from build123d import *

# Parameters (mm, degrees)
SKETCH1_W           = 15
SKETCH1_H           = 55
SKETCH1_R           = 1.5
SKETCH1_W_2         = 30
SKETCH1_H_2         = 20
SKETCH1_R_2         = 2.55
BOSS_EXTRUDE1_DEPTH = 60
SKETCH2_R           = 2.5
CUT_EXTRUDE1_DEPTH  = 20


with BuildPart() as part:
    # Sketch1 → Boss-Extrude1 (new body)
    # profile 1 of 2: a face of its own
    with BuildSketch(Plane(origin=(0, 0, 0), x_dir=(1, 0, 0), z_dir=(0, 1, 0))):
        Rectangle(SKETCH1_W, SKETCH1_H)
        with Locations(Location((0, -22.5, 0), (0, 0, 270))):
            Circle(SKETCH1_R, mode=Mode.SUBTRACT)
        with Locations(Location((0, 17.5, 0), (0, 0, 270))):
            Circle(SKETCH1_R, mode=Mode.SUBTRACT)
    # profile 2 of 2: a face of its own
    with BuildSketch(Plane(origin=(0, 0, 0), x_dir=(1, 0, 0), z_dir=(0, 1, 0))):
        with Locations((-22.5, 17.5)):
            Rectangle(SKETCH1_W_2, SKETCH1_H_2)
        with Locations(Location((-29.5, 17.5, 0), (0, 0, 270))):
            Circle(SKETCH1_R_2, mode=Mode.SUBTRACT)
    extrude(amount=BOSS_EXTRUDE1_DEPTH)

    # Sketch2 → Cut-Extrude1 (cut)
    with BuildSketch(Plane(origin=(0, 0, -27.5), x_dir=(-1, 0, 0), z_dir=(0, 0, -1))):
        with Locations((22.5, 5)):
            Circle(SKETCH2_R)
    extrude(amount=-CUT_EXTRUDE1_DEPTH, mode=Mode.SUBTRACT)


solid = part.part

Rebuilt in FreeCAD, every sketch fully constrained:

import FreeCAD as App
import Part
import Sketcher

V = App.Vector
Q = App.Units.Quantity


def add_polygon(sketch, points):
    """Adds a closed chain of lines whose ends are joined by coincident constraints."""
    first, n = sketch.GeometryCount, len(points)
    for a, b in zip(points, points[1:] + points[:1]):
        sketch.addGeometry(Part.LineSegment(App.Vector(*a, 0), App.Vector(*b, 0)), False)
    for i in range(n):
        sketch.addConstraint(Sketcher.Constraint("Coincident", first + i, 2, first + (i + 1) % n, 1))

doc = App.newDocument("Part")
body = doc.addObject("PartDesign::Body", "Body")

# Sketch on XZ plane
sketch1 = body.newObject("Sketcher::SketchObject", "Sketch")
sketch1.AttachmentSupport = (doc.getObject("XZ_Plane"), [""])
sketch1.MapMode = "FlatFace"
add_polygon(sketch1, [(-7.5, -7.5), (-7.5, 27.5), (7.5, 27.5), (7.5, -27.5), (-37.5, -27.5), (-37.5, -7.5)])  # lines 0-5
sketch1.addGeometry(Part.Circle(V(0, 22.5, 0), V(0, 0, 1), 1.5), False)  # 6
sketch1.addGeometry(Part.Circle(V(0, -17.5, 0), V(0, 0, 1), 1.5), False)  # 7
sketch1.addGeometry(Part.Circle(V(-29.5, -17.5, 0), V(0, 0, 1), 2.5), False)  # 8
sketch1.addConstraint(Sketcher.Constraint("Vertical", 0))
sketch1.addConstraint(Sketcher.Constraint("Horizontal", 1))
sketch1.addConstraint(Sketcher.Constraint("Vertical", 2))
sketch1.addConstraint(Sketcher.Constraint("Horizontal", 3))
sketch1.addConstraint(Sketcher.Constraint("Vertical", 4))
sketch1.addConstraint(Sketcher.Constraint("Horizontal", 5))
sketch1.addConstraint(Sketcher.Constraint("Equal", 6, 7))
sketch1.addConstraint(Sketcher.Constraint("Symmetric", 0, 2, 2, 2, -1, 1))
sketch1.addConstraint(Sketcher.Constraint("PointOnObject", 6, 3, -2))
sketch1.addConstraint(Sketcher.Constraint("PointOnObject", 7, 3, -2))
sketch1.addConstraint(Sketcher.Constraint("Horizontal", 7, 3, 8, 3))
sketch1.addConstraint(Sketcher.Constraint("Diameter", 6, Q("3 mm")))
sketch1.addConstraint(Sketcher.Constraint("Diameter", 8, Q("5.1 mm")))
sketch1.addConstraint(Sketcher.Constraint("DistanceX", 1, 1, 1, 2, Q("15 mm")))
sketch1.addConstraint(Sketcher.Constraint("DistanceX", 3, 2, 3, 1, Q("45 mm")))
sketch1.addConstraint(Sketcher.Constraint("DistanceY", 0, 1, 0, 2, Q("35 mm")))
sketch1.addConstraint(Sketcher.Constraint("DistanceY", 2, 2, 2, 1, Q("55 mm")))
sketch1.addConstraint(Sketcher.Constraint("DistanceY", 7, 3, 6, 3, Q("40 mm")))
sketch1.addConstraint(Sketcher.Constraint("DistanceY", 6, 3, 0, 2, Q("5 mm")))
sketch1.addConstraint(Sketcher.Constraint("DistanceX", 8, 3, 0, 2, Q("22 mm")))
pad1 = body.newObject("PartDesign::Pad", "Pad")
pad1.Profile = sketch1
pad1.Length = 60
pad1.Reversed = True

# Sketch on XY plane
sketch2 = body.newObject("Sketcher::SketchObject", "Sketch001")
sketch2.AttachmentSupport = (doc.getObject("XY_Plane"), [""])
sketch2.MapMode = "FlatFace"
sketch2.AttachmentOffset = App.Placement(V(0, 0, -27.5), App.Rotation())
sketch2.addGeometry(Part.Circle(V(-22.5, 5, 0), V(0, 0, 1), 2.5), False)
sketch2.addConstraint(Sketcher.Constraint("Diameter", 0, Q("5 mm")))
sketch2.addConstraint(Sketcher.Constraint("DistanceY", -1, 1, 0, 3, Q("5 mm")))
sketch2.addConstraint(Sketcher.Constraint("DistanceX", 0, 3, -1, 1, Q("22.5 mm")))
pocket1 = body.newObject("PartDesign::Pocket", "Pocket")
pocket1.Profile = sketch2
pocket1.Length = 20
pocket1.Reversed = True

doc.recompute()
